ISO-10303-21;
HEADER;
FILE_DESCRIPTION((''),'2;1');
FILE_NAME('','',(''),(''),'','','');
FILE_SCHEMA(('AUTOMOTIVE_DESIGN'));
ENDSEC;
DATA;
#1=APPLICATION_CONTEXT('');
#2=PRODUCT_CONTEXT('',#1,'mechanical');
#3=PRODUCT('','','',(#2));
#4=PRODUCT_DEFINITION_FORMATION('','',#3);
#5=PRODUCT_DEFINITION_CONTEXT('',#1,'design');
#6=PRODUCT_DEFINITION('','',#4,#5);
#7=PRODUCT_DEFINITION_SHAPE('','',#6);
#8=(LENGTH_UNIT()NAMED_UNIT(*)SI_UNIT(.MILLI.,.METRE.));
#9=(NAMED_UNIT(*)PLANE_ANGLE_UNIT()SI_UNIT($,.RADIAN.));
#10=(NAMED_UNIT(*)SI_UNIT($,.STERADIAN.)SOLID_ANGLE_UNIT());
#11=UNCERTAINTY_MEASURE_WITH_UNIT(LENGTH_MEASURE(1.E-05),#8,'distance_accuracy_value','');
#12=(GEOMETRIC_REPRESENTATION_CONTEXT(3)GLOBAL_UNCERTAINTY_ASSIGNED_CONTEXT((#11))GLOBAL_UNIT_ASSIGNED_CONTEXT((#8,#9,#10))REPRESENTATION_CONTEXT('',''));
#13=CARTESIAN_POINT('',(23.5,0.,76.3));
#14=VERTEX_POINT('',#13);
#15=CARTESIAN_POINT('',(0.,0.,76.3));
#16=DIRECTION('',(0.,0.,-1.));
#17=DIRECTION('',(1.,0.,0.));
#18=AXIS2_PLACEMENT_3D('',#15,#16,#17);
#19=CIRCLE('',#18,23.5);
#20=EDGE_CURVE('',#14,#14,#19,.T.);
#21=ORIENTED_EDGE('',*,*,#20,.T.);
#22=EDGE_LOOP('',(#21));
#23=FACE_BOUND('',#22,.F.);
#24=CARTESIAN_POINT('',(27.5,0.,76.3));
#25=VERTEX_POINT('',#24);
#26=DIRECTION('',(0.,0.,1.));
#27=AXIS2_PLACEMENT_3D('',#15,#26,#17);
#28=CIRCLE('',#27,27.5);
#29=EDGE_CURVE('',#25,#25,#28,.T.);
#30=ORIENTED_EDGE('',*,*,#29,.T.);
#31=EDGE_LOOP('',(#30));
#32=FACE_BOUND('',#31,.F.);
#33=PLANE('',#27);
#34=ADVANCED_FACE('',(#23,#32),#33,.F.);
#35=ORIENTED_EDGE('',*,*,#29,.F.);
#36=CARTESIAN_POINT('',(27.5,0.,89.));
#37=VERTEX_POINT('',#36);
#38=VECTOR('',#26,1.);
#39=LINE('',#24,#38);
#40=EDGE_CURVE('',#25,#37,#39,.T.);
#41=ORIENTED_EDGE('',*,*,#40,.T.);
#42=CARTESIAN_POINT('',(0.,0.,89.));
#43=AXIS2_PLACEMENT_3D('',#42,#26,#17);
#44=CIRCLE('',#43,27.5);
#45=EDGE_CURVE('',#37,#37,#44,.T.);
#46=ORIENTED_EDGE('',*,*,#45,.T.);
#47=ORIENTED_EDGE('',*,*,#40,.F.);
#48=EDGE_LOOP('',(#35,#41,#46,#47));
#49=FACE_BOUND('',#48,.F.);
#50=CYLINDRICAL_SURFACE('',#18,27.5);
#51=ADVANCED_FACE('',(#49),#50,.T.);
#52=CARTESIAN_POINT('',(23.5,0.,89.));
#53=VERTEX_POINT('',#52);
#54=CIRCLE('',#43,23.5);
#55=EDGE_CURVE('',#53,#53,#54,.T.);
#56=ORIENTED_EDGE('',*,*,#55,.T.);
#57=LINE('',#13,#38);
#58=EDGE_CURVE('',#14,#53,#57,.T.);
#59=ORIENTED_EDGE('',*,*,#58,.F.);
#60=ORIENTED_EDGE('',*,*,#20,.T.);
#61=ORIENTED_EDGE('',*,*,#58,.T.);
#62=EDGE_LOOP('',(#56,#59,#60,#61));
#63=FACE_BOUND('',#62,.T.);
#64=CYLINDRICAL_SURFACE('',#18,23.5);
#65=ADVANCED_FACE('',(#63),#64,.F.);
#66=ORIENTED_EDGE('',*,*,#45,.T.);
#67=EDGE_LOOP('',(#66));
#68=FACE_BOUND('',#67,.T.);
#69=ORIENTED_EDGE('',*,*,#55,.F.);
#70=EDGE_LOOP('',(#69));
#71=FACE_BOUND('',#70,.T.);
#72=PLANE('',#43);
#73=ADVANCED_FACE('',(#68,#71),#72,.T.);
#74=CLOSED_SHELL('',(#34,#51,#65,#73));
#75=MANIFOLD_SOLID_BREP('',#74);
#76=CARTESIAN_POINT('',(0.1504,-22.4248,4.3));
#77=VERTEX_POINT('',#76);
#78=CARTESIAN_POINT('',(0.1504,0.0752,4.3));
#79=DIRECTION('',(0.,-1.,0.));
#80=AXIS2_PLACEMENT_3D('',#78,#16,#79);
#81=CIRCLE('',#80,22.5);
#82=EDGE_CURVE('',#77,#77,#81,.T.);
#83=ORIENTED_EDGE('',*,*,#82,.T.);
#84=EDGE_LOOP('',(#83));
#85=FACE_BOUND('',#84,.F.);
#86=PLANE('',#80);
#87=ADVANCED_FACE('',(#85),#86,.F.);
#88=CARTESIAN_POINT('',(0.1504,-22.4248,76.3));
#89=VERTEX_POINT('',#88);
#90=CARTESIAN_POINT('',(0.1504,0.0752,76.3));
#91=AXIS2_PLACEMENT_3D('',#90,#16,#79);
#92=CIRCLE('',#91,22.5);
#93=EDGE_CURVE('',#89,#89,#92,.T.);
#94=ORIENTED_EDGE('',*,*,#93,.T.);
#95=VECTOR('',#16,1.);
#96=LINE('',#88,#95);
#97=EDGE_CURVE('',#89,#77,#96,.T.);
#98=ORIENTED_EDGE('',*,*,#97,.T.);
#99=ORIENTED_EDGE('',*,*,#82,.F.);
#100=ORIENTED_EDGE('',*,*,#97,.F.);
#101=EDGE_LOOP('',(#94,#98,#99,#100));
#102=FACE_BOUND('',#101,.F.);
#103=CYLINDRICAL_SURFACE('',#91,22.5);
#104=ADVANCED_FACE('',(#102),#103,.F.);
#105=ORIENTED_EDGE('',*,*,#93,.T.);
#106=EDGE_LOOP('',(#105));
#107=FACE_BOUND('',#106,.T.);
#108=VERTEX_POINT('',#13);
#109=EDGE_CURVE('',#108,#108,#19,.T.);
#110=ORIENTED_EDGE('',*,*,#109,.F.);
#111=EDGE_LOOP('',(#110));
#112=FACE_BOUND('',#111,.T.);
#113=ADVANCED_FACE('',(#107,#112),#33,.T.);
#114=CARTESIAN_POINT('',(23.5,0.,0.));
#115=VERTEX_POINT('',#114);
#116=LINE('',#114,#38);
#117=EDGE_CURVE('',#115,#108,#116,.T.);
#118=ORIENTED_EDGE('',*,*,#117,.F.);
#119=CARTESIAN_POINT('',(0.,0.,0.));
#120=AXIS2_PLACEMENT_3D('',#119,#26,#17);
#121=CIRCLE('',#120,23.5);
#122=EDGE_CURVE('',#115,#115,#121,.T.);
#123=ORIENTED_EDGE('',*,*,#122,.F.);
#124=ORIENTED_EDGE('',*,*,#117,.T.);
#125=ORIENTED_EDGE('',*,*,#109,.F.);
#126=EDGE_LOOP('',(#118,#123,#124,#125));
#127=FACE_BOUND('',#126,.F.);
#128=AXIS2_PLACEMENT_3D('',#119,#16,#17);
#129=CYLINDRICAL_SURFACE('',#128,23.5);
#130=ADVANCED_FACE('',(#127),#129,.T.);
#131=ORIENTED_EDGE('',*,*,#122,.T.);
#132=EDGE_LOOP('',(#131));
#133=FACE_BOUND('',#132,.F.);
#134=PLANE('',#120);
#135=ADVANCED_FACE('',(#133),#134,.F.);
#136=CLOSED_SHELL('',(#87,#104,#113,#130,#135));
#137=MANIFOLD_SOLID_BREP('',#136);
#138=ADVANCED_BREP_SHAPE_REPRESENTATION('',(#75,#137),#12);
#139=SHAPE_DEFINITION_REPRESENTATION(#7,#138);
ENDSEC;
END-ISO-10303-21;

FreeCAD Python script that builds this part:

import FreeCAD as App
import Part
import Sketcher

V = App.Vector

doc = App.newDocument("Part")
params = doc.addObject("Spreadsheet::Sheet", "Params")
for row, (alias, value) in enumerate([
    ("sketch1_diameter", "47 mm"),
    ("pad1_length", "76.3 mm"),
    ("sketch2_diameter", "55 mm"),
    ("sketch2_diameter2", "47 mm"),
    ("pad2_length", "12.7 mm"),
    ("sketch3_diameter", "45 mm"),
    ("hole_diameter", "45 mm"),
    ("hole_depth", "72 mm"),
], start=1):
    params.set(f"A{row}", alias)
    params.set(f"B{row}", "=" + value)
    params.setAlias(f"B{row}", alias)

body = doc.addObject("PartDesign::Body", "Body")
body.AllowCompound = True

# Sketch on XY plane
sketch1 = body.newObject("Sketcher::SketchObject", "Sketch")
sketch1.AttachmentSupport = (doc.getObject("XY_Plane"), [""])
sketch1.MapMode = "FlatFace"
sketch1.addGeometry(Part.Circle(V(0, 0, 0), V(0, 0, 1), 24), False)
sketch1.addConstraint(Sketcher.Constraint("Coincident", 0, 3, -1, 1))
sketch1.addConstraint(Sketcher.Constraint("Diameter", 0, 47.0))
sketch1.setExpression("Constraints[1]", "Params.sketch1_diameter")
pad1 = body.newObject("PartDesign::Pad", "Pad")
pad1.Profile = sketch1
pad1.setExpression("Length", "Params.pad1_length")

# Sketch on XY plane
sketch2 = body.newObject("Sketcher::SketchObject", "Sketch001")
sketch2.AttachmentSupport = (doc.getObject("XY_Plane"), [""])
sketch2.MapMode = "FlatFace"
sketch2.AttachmentOffset = App.Placement(V(0, 0, 76.3), App.Rotation())
sketch2.addGeometry(Part.Circle(V(0, 0, 0), V(0, 0, 1), 28), False)
sketch2.addGeometry(Part.Circle(V(0, 0, 0), V(0, 0, 1), 24), False)
sketch2.addConstraint(Sketcher.Constraint("Coincident", 0, 3, -1, 1))
sketch2.addConstraint(Sketcher.Constraint("Coincident", 1, 3, -1, 1))
sketch2.addConstraint(Sketcher.Constraint("Diameter", 0, 55.0))
sketch2.addConstraint(Sketcher.Constraint("Diameter", 1, 47.0))
sketch2.setExpression("Constraints[2]", "Params.sketch2_diameter")
sketch2.setExpression("Constraints[3]", "Params.sketch2_diameter2")
pad2 = body.newObject("PartDesign::Pad", "Pad001")
pad2.Profile = sketch2
pad2.setExpression("Length", "Params.pad2_length")

# Sketch on XY plane
sketch3 = body.newObject("Sketcher::SketchObject", "Sketch002")
sketch3.AttachmentSupport = (doc.getObject("XY_Plane"), [""])
sketch3.MapMode = "FlatFace"
sketch3.AttachmentOffset = App.Placement(V(0, 0, 76.3), App.Rotation())
sketch3.addGeometry(Part.Circle(V(0, 0, 0), V(0, 0, 1), 22), False)
sketch3.addConstraint(Sketcher.Constraint("Diameter", 0, 45.0))
sketch3.addConstraint(Sketcher.Constraint("DistanceX", -1, 1, 0, 3, 0.1504))
sketch3.addConstraint(Sketcher.Constraint("DistanceY", -1, 1, 0, 3, 0.0752))
sketch3.setExpression("Constraints[0]", "Params.sketch3_diameter")
doc.recompute()
hole = body.newObject("PartDesign::Hole", "Hole")
hole.Profile = sketch3
hole.ThreadType = "None"
hole.setExpression("Diameter", "Params.hole_diameter")
hole.DepthType = "Dimension"
hole.setExpression("Depth", "Params.hole_depth")
hole.DrillPoint = "Flat"

doc.recompute()
